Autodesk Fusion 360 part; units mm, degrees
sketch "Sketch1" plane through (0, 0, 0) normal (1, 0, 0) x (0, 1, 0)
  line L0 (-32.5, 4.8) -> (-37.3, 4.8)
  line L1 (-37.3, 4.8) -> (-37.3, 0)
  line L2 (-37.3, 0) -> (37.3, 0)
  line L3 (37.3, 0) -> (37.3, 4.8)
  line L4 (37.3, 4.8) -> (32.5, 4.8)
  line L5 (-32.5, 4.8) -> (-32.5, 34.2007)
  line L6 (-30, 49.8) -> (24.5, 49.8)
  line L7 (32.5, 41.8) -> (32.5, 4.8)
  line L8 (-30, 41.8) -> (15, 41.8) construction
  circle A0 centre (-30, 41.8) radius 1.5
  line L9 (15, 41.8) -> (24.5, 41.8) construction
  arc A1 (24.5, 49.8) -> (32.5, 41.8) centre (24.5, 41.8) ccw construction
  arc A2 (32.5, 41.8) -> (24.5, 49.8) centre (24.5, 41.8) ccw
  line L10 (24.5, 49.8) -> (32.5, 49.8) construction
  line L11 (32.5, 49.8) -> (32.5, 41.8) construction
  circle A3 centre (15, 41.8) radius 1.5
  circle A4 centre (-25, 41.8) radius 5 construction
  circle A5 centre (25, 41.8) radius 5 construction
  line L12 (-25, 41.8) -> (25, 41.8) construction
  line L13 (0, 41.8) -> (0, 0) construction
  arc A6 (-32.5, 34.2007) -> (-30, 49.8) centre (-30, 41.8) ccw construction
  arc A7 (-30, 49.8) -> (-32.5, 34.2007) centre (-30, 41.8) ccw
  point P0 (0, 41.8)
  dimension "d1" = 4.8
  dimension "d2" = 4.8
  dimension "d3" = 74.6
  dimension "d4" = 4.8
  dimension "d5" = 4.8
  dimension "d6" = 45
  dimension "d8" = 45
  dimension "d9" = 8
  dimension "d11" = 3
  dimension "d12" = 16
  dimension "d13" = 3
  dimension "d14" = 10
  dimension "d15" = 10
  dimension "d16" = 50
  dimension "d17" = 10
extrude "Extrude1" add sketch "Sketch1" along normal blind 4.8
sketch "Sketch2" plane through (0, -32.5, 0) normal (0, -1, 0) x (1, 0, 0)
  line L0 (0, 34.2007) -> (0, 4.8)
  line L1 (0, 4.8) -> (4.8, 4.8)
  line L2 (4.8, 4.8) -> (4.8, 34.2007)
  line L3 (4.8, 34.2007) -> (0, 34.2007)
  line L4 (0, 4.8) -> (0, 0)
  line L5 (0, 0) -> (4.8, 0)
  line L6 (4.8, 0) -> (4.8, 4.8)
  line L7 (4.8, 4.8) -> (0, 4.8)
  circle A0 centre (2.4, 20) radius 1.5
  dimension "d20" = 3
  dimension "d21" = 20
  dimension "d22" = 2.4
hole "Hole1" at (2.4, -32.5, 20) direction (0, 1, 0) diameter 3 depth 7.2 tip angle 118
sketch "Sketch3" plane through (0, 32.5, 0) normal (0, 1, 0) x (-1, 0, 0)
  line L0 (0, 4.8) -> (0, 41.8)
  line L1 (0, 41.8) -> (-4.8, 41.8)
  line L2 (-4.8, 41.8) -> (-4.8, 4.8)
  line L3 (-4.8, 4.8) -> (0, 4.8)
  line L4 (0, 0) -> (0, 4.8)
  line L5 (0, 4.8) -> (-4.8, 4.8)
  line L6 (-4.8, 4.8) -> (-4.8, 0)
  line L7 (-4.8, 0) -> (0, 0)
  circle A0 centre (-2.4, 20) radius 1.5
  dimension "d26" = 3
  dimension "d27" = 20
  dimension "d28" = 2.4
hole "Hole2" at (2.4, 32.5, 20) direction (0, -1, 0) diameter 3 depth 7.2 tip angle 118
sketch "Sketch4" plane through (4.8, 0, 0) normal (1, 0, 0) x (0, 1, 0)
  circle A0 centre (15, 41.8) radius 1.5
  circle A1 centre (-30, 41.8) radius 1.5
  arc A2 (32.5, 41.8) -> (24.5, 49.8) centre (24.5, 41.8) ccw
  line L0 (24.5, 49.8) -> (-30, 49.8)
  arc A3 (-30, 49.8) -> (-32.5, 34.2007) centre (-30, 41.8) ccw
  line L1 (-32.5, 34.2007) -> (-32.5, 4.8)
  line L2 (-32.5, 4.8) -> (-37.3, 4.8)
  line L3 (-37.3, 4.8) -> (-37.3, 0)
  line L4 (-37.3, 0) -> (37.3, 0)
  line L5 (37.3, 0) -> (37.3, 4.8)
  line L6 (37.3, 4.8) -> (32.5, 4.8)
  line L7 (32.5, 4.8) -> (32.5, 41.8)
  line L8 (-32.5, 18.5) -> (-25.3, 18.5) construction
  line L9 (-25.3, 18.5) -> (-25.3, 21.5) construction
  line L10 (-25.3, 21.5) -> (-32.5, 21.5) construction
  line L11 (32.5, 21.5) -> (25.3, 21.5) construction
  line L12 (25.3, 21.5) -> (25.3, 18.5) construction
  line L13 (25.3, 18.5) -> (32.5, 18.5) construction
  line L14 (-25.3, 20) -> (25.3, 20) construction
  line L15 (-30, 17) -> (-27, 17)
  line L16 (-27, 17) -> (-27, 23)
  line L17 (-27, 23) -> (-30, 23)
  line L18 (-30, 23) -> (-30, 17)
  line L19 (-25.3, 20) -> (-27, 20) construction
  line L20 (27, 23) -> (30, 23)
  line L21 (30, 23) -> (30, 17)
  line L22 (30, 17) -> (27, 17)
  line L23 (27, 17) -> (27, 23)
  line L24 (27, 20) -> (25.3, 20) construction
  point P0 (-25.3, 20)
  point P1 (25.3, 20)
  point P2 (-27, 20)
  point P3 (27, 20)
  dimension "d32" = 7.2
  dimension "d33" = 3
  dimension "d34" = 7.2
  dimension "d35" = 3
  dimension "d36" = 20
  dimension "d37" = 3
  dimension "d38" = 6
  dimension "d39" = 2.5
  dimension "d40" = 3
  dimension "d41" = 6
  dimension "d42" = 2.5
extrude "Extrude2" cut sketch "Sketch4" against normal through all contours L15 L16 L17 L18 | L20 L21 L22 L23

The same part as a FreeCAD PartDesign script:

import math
import FreeCAD as App
import Part
import Sketcher


def add_polygon(sketch, points):
    """Adds a closed chain of lines whose ends are joined by coincident constraints."""
    first, n = sketch.GeometryCount, len(points)
    for a, b in zip(points, points[1:] + points[:1]):
        sketch.addGeometry(Part.LineSegment(App.Vector(*a, 0), App.Vector(*b, 0)), False)
    for i in range(n):
        sketch.addConstraint(Sketcher.Constraint("Coincident", first + i, 2, first + (i + 1) % n, 1))

doc = App.newDocument("Part")
body = doc.addObject("PartDesign::Body", "Body")

# Sketch on YZ plane
sketch1 = body.newObject("Sketcher::SketchObject", "Sketch")
sketch1.AttachmentSupport = (doc.getObject("YZ_Plane"), [""])
sketch1.MapMode = "FlatFace"
sketch1.addGeometry(Part.LineSegment(App.Vector(-32.5, 34.2, 0), App.Vector(-32.5, 4.8, 0)), False)
sketch1.addGeometry(Part.LineSegment(App.Vector(-32.5, 4.8, 0), App.Vector(-37.3, 4.8, 0)), False)
sketch1.addGeometry(Part.LineSegment(App.Vector(-37.3, 4.8, 0), App.Vector(-37.3, 0, 0)), False)
sketch1.addGeometry(Part.LineSegment(App.Vector(-37.3, 0, 0), App.Vector(37.3, 0, 0)), False)
sketch1.addGeometry(Part.LineSegment(App.Vector(37.3, 0, 0), App.Vector(37.3, 4.8, 0)), False)
sketch1.addGeometry(Part.LineSegment(App.Vector(37.3, 4.8, 0), App.Vector(32.5, 4.8, 0)), False)
sketch1.addGeometry(Part.LineSegment(App.Vector(32.5, 4.8, 0), App.Vector(32.5, 41.8, 0)), False)
sketch1.addGeometry(Part.ArcOfCircle(Part.Circle(App.Vector(24.5, 41.8, 0), App.Vector(0, 0, 1), 8), math.radians(0), math.radians(90)), False)
sketch1.addGeometry(Part.LineSegment(App.Vector(24.5, 49.8, 0), App.Vector(-30, 49.8, 0)), False)
sketch1.addGeometry(Part.ArcOfCircle(Part.Circle(App.Vector(-30, 41.8, 0), App.Vector(0, 0, 1), 8), math.radians(90), math.radians(252)), False)
sketch1.addGeometry(Part.Circle(App.Vector(-30, 41.8, 0), App.Vector(0, 0, 1), 1.5), False)
sketch1.addGeometry(Part.Circle(App.Vector(15, 41.8, 0), App.Vector(0, 0, 1), 1.5), False)
sketch1.addConstraint(Sketcher.Constraint("Coincident", 0, 2, 1, 1))
sketch1.addConstraint(Sketcher.Constraint("Coincident", 1, 2, 2, 1))
sketch1.addConstraint(Sketcher.Constraint("Coincident", 2, 2, 3, 1))
sketch1.addConstraint(Sketcher.Constraint("Coincident", 3, 2, 4, 1))
sketch1.addConstraint(Sketcher.Constraint("Coincident", 4, 2, 5, 1))
sketch1.addConstraint(Sketcher.Constraint("Coincident", 5, 2, 6, 1))
sketch1.addConstraint(Sketcher.Constraint("Tangent", 6, 2, 7, 1))
sketch1.addConstraint(Sketcher.Constraint("Tangent", 7, 2, 8, 1))
sketch1.addConstraint(Sketcher.Constraint("Tangent", 8, 2, 9, 1))
sketch1.addConstraint(Sketcher.Constraint("Coincident", 9, 2, 0, 1))
sketch1.addConstraint(Sketcher.Constraint("Vertical", 0))
sketch1.addConstraint(Sketcher.Constraint("Horizontal", 1))
sketch1.addConstraint(Sketcher.Constraint("Vertical", 2))
sketch1.addConstraint(Sketcher.Constraint("Horizontal", 3))
sketch1.addConstraint(Sketcher.Constraint("Vertical", 4))
sketch1.addConstraint(Sketcher.Constraint("Horizontal", 5))
sketch1.addConstraint(Sketcher.Constraint("Vertical", 6))
sketch1.addConstraint(Sketcher.Constraint("Horizontal", 8))
sketch1.addConstraint(Sketcher.Constraint("Coincident", 10, 3, 9, 3))
sketch1.addConstraint(Sketcher.Constraint("Equal", 7, 9))
sketch1.addConstraint(Sketcher.Constraint("Equal", 10, 11))
sketch1.addConstraint(Sketcher.Constraint("Symmetric", 2, 2, 3, 2, -1, 1))
sketch1.addConstraint(Sketcher.Constraint("Symmetric", 0, 2, 5, 2, -2))
sketch1.addConstraint(Sketcher.Constraint("Horizontal", 10, 3, 11, 3))
sketch1.addConstraint(Sketcher.Constraint("Equal", 5, 2))
sketch1.addConstraint(Sketcher.Constraint("Diameter", 10, 3.0))
sketch1.addConstraint(Sketcher.Constraint("Radius", 7, 8.0))
sketch1.addConstraint(Sketcher.Constraint("DistanceX", 1, 2, 1, 1, 4.8))
sketch1.addConstraint(Sketcher.Constraint("DistanceX", 3, 1, 3, 2, 74.6))
sketch1.addConstraint(Sketcher.Constraint("DistanceX", 9, 3, 11, 3, 45.0))
sketch1.addConstraint(Sketcher.Constraint("DistanceY", 5, 2, 7, 2, 45.0))
sketch1.addConstraint(Sketcher.Constraint("DistanceX", 8, 2, 8, 1, 54.5))
pad1 = body.newObject("PartDesign::Pad", "Pad")
pad1.Profile = sketch1
pad1.Length = 4.8

# Sketch on XZ plane
sketch2 = body.newObject("Sketcher::SketchObject", "Sketch001")
sketch2.AttachmentSupport = (doc.getObject("XZ_Plane"), [""])
sketch2.MapMode = "FlatFace"
sketch2.AttachmentOffset = App.Placement(App.Vector(0, 0, 32.5), App.Rotation())
sketch2.addGeometry(Part.Circle(App.Vector(2.4, 20, 0), App.Vector(0, 0, 1), 1.5), False)
sketch2.addConstraint(Sketcher.Constraint("Diameter", 0, 3.0))
sketch2.addConstraint(Sketcher.Constraint("DistanceY", -1, 1, 0, 3, 20.0))
sketch2.addConstraint(Sketcher.Constraint("DistanceX", -1, 1, 0, 3, 2.4))
doc.recompute()
hole = body.newObject("PartDesign::Hole", "Hole")
hole.Profile = sketch2
hole.ThreadType = "None"
hole.Diameter = 3
hole.DepthType = "Dimension"
hole.Depth = 7.2
hole.DrillPoint = "Angled"
hole.DrillPointAngle = 118

# Sketch on XZ plane
sketch3 = body.newObject("Sketcher::SketchObject", "Sketch002")
sketch3.AttachmentSupport = (doc.getObject("XZ_Plane"), [""])
sketch3.MapMode = "FlatFace"
sketch3.AttachmentOffset = App.Placement(App.Vector(0, 0, -32.5), App.Rotation())
sketch3.addGeometry(Part.Circle(App.Vector(2.4, 20, 0), App.Vector(0, 0, 1), 1.5), False)
sketch3.addConstraint(Sketcher.Constraint("Diameter", 0, 3.0))
sketch3.addConstraint(Sketcher.Constraint("DistanceY", -1, 1, 0, 3, 20.0))
sketch3.addConstraint(Sketcher.Constraint("DistanceX", -1, 1, 0, 3, 2.4))
doc.recompute()
hole2 = body.newObject("PartDesign::Hole", "Hole001")
hole2.Profile = sketch3
hole2.ThreadType = "None"
hole2.Diameter = 3
hole2.DepthType = "Dimension"
hole2.Depth = 7.2
hole2.DrillPoint = "Angled"
hole2.DrillPointAngle = 118
hole2.Reversed = True

# Sketch on YZ plane
sketch4 = body.newObject("Sketcher::SketchObject", "Sketch003")
sketch4.AttachmentSupport = (doc.getObject("YZ_Plane"), [""])
sketch4.MapMode = "FlatFace"
sketch4.AttachmentOffset = App.Placement(App.Vector(0, 0, 4.8), App.Rotation())
add_polygon(sketch4, [(-30, 23), (-30, 17), (-27, 17), (-27, 23)])  # lines 0-3
add_polygon(sketch4, [(30, 23), (27, 23), (27, 17), (30, 17)])  # lines 4-7
sketch4.addConstraint(Sketcher.Constraint("Vertical", 0))
sketch4.addConstraint(Sketcher.Constraint("Horizontal", 1))
sketch4.addConstraint(Sketcher.Constraint("Vertical", 2))
sketch4.addConstraint(Sketcher.Constraint("Horizontal", 3))
sketch4.addConstraint(Sketcher.Constraint("Horizontal", 4))
sketch4.addConstraint(Sketcher.Constraint("Vertical", 5))
sketch4.addConstraint(Sketcher.Constraint("Horizontal", 6))
sketch4.addConstraint(Sketcher.Constraint("Vertical", 7))
sketch4.addConstraint(Sketcher.Constraint("Symmetric", 2, 2, 4, 2, -2))
sketch4.addConstraint(Sketcher.Constraint("Symmetric", 0, 2, 6, 2, -2))
sketch4.addConstraint(Sketcher.Constraint("DistanceX", 1, 1, 1, 2, 3.0))
sketch4.addConstraint(Sketcher.Constraint("DistanceY", 0, 2, 0, 1, 6.0))
sketch4.addConstraint(Sketcher.Constraint("DistanceX", 0, 2, -1, 1, 30.0))
sketch4.addConstraint(Sketcher.Constraint("DistanceY", -1, 1, 0, 2, 17.0))
pocket1 = body.newObject("PartDesign::Pocket", "Pocket")
pocket1.Profile = sketch4
pocket1.Type = "ThroughAll"

doc.recompute()
